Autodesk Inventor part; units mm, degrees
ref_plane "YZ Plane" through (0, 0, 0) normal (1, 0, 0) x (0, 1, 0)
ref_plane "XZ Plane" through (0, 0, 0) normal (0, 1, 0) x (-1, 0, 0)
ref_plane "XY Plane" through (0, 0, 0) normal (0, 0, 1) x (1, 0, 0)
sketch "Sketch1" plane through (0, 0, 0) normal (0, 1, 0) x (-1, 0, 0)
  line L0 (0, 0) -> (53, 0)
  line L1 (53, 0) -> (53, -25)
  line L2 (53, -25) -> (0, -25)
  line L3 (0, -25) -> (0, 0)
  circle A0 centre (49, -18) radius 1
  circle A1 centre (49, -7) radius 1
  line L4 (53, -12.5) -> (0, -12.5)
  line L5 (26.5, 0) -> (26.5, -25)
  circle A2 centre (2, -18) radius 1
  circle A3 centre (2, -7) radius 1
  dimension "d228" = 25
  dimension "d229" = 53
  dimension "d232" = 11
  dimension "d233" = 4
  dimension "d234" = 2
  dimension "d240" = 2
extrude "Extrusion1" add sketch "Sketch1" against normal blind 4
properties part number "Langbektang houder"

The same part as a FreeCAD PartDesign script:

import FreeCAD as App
import Part
import Sketcher

doc = App.newDocument("Part")
params = doc.addObject("Spreadsheet::Sheet", "Params")
for row, (alias, value) in enumerate([
    ("sketch1_diameter", "2 mm"),
    ("sketch1_width", "53 mm"),
    ("sketch1_height", "25 mm"),
    ("pad1_length", "4 mm"),
], start=1):
    params.set(f"A{row}", alias)
    params.set(f"B{row}", "=" + value)
    params.setAlias(f"B{row}", alias)

body = doc.addObject("PartDesign::Body", "Body")

# Sketch on XZ plane
sketch1 = doc.addObject("Sketcher::SketchObject", "Sketch")
body.addObject(sketch1)
sketch1.AttachmentSupport = (doc.XZ_Plane, [""])
sketch1.MapMode = "FlatFace"
sketch1.addGeometry([
    Part.LineSegment(App.Vector(0, 0, 0), App.Vector(0, -25, 0)),  # 0
    Part.LineSegment(App.Vector(0, -25, 0), App.Vector(-53, -25, 0)),  # 1
    Part.LineSegment(App.Vector(-53, -25, 0), App.Vector(-53, 0, 0)),  # 2
    Part.LineSegment(App.Vector(-53, 0, 0), App.Vector(0, 0, 0)),  # 3
    Part.Circle(App.Vector(-2, -7, 0), App.Vector(0, 0, 1), 1),  # 4
    Part.Circle(App.Vector(-49, -7, 0), App.Vector(0, 0, 1), 1),  # 5
    Part.Circle(App.Vector(-2, -18, 0), App.Vector(0, 0, 1), 1),  # 6
    Part.Circle(App.Vector(-49, -18, 0), App.Vector(0, 0, 1), 1),  # 7
], False)
sketch1.addConstraint([
    Sketcher.Constraint("Coincident", 0, 2, 1, 1),
    Sketcher.Constraint("Coincident", 1, 2, 2, 1),
    Sketcher.Constraint("Coincident", 2, 2, 3, 1),
    Sketcher.Constraint("Coincident", 3, 2, 0, 1),
    Sketcher.Constraint("Vertical", 0),
    Sketcher.Constraint("Horizontal", 1),
    Sketcher.Constraint("Vertical", 2),
    Sketcher.Constraint("Horizontal", 3),
    Sketcher.Constraint("Coincident", 3, 2, -1, 1),
    Sketcher.Constraint("Equal", 4, 5),
    Sketcher.Constraint("Equal", 5, 6),
    Sketcher.Constraint("Equal", 6, 7),
    Sketcher.Constraint("Horizontal", 4, 3, 5, 3),
    Sketcher.Constraint("Horizontal", 6, 3, 7, 3),
    Sketcher.Constraint("Vertical", 4, 3, 6, 3),
    Sketcher.Constraint("Vertical", 5, 3, 7, 3),
    Sketcher.Constraint("Diameter", 4, 2.0),
    Sketcher.Constraint("DistanceX", 1, 2, 1, 1, 53.0),
    Sketcher.Constraint("DistanceY", 0, 2, 0, 1, 25.0),
    Sketcher.Constraint("DistanceX", 4, 3, -1, 1, 2.0),
    Sketcher.Constraint("DistanceY", 6, 3, 4, 3, 11.0),
    Sketcher.Constraint("DistanceX", 1, 2, 7, 3, 4.0),
    Sketcher.Constraint("DistanceY", 4, 3, -1, 1, 7.0),
])
sketch1.setExpression("Constraints[16]", "Params.sketch1_diameter")
sketch1.setExpression("Constraints[17]", "Params.sketch1_width")
sketch1.setExpression("Constraints[18]", "Params.sketch1_height")
pad1 = doc.addObject("PartDesign::Pad", "Pad")
body.addObject(pad1)
pad1.Profile = sketch1
pad1.setExpression("Length", "Params.pad1_length")

doc.recompute()
